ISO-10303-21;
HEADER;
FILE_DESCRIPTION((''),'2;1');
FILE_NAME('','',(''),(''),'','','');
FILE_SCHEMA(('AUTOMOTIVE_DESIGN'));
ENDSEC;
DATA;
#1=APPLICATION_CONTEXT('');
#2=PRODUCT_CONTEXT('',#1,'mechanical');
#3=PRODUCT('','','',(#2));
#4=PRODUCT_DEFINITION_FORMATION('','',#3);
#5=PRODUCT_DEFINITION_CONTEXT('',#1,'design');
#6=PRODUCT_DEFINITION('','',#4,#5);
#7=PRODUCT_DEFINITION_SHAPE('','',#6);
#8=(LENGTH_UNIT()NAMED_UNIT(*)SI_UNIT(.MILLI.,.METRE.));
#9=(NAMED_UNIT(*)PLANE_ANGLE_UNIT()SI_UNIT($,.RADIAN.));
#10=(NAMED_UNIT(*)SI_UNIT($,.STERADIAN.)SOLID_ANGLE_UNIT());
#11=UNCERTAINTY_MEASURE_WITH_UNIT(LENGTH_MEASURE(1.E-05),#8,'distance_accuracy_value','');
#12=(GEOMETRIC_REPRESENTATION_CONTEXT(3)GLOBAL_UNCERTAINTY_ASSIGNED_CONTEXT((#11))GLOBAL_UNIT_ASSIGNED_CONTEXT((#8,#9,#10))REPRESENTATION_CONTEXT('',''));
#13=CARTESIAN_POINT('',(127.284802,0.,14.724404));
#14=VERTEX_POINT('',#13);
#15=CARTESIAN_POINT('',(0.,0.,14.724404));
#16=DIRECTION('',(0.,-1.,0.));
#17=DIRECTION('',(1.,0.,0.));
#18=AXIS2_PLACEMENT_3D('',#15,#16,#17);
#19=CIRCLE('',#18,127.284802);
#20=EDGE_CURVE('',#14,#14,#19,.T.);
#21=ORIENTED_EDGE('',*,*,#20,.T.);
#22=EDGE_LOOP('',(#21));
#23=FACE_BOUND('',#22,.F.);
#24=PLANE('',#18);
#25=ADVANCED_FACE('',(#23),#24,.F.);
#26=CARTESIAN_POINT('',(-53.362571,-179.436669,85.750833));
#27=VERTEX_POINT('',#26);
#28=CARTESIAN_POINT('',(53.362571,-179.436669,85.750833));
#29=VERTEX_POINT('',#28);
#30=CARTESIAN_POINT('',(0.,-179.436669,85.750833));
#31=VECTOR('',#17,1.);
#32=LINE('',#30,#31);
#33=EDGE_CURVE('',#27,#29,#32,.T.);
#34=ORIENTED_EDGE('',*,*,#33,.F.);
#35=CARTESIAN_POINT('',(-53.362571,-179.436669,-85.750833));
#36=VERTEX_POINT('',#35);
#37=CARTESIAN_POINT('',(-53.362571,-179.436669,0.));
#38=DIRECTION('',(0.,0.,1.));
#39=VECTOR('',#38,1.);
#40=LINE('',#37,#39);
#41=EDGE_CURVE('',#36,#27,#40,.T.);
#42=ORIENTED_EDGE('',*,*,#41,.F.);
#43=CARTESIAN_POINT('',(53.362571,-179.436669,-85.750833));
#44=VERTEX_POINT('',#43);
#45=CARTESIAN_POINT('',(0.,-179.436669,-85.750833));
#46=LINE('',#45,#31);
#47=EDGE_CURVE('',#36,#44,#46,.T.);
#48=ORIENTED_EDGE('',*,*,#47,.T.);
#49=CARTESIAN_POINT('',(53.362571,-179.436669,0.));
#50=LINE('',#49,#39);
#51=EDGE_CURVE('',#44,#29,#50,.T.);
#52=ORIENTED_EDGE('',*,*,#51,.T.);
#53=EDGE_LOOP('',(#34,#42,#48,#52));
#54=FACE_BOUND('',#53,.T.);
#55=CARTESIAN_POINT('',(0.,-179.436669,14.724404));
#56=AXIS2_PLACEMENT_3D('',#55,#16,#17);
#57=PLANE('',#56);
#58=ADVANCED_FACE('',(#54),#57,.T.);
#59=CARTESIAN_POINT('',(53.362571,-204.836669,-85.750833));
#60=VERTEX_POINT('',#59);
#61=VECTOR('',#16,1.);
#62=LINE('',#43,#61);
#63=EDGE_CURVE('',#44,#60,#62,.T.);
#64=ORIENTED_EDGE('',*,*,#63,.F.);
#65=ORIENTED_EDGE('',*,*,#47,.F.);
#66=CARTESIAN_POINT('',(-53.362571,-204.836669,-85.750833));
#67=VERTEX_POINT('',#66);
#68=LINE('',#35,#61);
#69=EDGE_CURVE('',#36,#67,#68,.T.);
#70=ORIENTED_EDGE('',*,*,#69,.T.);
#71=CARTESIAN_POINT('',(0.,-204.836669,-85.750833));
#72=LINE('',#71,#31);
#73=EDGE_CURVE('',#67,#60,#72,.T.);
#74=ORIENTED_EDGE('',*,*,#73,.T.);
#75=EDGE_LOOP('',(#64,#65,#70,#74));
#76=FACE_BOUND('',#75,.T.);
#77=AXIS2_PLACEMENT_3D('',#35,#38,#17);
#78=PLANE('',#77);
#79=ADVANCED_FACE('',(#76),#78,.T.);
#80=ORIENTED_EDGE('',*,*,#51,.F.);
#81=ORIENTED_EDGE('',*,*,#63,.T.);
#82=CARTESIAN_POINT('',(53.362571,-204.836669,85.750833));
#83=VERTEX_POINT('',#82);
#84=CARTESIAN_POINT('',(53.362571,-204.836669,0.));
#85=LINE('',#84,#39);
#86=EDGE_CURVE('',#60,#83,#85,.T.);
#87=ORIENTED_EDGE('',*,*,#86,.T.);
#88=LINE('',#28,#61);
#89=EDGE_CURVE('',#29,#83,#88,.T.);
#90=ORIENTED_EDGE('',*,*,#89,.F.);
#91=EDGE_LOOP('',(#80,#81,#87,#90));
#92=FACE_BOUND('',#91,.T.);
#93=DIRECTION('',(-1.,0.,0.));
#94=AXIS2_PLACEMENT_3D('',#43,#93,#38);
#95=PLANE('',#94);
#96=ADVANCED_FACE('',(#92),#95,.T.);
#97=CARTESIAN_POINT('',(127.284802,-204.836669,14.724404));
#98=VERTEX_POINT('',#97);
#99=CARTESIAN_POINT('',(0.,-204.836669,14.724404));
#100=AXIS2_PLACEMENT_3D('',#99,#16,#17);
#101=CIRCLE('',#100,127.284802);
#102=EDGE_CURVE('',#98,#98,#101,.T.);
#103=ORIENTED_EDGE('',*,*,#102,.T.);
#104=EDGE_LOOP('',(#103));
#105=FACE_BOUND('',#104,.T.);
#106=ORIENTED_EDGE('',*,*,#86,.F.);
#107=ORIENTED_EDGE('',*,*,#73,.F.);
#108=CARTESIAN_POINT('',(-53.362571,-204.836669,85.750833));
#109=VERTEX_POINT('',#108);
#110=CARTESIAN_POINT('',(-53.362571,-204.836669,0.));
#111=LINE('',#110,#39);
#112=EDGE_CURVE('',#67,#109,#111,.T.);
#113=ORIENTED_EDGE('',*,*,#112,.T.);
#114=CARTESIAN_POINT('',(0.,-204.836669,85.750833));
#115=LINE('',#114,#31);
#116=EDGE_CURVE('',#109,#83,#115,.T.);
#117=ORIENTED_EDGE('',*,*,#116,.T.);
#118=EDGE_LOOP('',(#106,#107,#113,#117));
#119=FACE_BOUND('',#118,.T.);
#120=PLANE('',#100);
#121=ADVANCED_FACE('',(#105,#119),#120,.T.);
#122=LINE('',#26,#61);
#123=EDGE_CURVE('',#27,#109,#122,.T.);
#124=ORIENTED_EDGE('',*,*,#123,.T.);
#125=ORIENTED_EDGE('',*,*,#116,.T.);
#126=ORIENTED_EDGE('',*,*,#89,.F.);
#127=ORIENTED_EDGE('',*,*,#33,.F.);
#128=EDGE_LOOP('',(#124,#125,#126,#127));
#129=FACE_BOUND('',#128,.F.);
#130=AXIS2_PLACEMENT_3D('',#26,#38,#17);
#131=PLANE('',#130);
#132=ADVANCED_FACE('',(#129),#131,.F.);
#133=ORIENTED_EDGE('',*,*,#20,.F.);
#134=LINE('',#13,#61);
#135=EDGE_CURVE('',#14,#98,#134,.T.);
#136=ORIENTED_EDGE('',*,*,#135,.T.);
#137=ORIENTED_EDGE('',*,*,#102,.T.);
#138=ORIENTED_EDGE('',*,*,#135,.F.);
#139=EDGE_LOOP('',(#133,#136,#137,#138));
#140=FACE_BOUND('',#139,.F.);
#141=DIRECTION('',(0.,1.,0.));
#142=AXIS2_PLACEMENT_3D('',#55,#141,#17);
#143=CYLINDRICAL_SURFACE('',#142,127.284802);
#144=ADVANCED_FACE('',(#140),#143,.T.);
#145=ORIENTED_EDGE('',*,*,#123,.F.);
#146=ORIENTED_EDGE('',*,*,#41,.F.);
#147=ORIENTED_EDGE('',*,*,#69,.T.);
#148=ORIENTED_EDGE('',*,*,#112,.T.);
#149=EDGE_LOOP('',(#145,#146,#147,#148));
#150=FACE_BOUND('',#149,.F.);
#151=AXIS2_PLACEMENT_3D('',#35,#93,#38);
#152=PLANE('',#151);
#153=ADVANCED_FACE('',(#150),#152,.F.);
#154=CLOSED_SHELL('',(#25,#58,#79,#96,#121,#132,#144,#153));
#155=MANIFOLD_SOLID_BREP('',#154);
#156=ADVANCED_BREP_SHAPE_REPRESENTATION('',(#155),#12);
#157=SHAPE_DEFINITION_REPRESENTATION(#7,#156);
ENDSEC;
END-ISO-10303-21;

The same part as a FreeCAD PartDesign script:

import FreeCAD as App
import Part
import Sketcher
Q = App.Units.Quantity

doc = App.newDocument("Part")
body = doc.addObject("PartDesign::Body", "Body")

# Sketch on XZ plane
sketch1 = doc.addObject("Sketcher::SketchObject", "Sketch")
body.addObject(sketch1)
sketch1.AttachmentSupport = (doc.XZ_Plane, [""])
sketch1.MapMode = "FlatFace"
sketch1.addGeometry(Part.Circle(App.Vector(0, 15, 0), App.Vector(0, 0, 1), 127), False)
sketch1.addConstraint(Sketcher.Constraint("PointOnObject", 0, 3, -2))
sketch1.addConstraint(Sketcher.Constraint("Diameter", 0, Q("254.569604 mm")))
sketch1.addConstraint(Sketcher.Constraint("DistanceY", -1, 1, 0, 3, Q("14.724404 mm")))
pad1 = doc.addObject("PartDesign::Pad", "Pad")
body.addObject(pad1)
pad1.Profile = sketch1
pad1.Length = 179.436669

# Sketch on XZ plane
sketch2 = doc.addObject("Sketcher::SketchObject", "Sketch001")
body.addObject(sketch2)
sketch2.AttachmentSupport = (doc.XZ_Plane, [""])
sketch2.MapMode = "FlatFace"
sketch2.AttachmentOffset = App.Placement(App.Vector(0, 0, 179.436669), App.Rotation())
sketch2.addGeometry(Part.Circle(App.Vector(0, 15, 0), App.Vector(0, 0, 1), 127), False)
sketch2.addGeometry(Part.LineSegment(App.Vector(53, -86, 0), App.Vector(-53, -86, 0)), False)
sketch2.addGeometry(Part.LineSegment(App.Vector(-53, -86, 0), App.Vector(-53, 86, 0)), False)
sketch2.addGeometry(Part.LineSegment(App.Vector(-53, 86, 0), App.Vector(53, 86, 0)), False)
sketch2.addGeometry(Part.LineSegment(App.Vector(53, 86, 0), App.Vector(53, -86, 0)), False)
sketch2.addConstraint(Sketcher.Constraint("Coincident", 1, 2, 2, 1))
sketch2.addConstraint(Sketcher.Constraint("Coincident", 2, 2, 3, 1))
sketch2.addConstraint(Sketcher.Constraint("Coincident", 3, 2, 4, 1))
sketch2.addConstraint(Sketcher.Constraint("Coincident", 4, 2, 1, 1))
sketch2.addConstraint(Sketcher.Constraint("Horizontal", 1))
sketch2.addConstraint(Sketcher.Constraint("Vertical", 2))
sketch2.addConstraint(Sketcher.Constraint("Horizontal", 3))
sketch2.addConstraint(Sketcher.Constraint("Vertical", 4))
sketch2.addConstraint(Sketcher.Constraint("Symmetric", 1, 2, 3, 2, -1, 1))
sketch2.addConstraint(Sketcher.Constraint("PointOnObject", 0, 3, -2))
sketch2.addConstraint(Sketcher.Constraint("Diameter", 0, Q("254.569604 mm")))
sketch2.addConstraint(Sketcher.Constraint("DistanceX", 1, 2, 1, 1, Q("106.725142 mm")))
sketch2.addConstraint(Sketcher.Constraint("DistanceY", 2, 1, 2, 2, Q("171.501666 mm")))
sketch2.addConstraint(Sketcher.Constraint("DistanceY", 0, 3, 2, 2, Q("71.026429 mm")))
pad2 = doc.addObject("PartDesign::Pad", "Pad001")
body.addObject(pad2)
pad2.Profile = sketch2
pad2.Length = Q("1 in")

doc.recompute()
